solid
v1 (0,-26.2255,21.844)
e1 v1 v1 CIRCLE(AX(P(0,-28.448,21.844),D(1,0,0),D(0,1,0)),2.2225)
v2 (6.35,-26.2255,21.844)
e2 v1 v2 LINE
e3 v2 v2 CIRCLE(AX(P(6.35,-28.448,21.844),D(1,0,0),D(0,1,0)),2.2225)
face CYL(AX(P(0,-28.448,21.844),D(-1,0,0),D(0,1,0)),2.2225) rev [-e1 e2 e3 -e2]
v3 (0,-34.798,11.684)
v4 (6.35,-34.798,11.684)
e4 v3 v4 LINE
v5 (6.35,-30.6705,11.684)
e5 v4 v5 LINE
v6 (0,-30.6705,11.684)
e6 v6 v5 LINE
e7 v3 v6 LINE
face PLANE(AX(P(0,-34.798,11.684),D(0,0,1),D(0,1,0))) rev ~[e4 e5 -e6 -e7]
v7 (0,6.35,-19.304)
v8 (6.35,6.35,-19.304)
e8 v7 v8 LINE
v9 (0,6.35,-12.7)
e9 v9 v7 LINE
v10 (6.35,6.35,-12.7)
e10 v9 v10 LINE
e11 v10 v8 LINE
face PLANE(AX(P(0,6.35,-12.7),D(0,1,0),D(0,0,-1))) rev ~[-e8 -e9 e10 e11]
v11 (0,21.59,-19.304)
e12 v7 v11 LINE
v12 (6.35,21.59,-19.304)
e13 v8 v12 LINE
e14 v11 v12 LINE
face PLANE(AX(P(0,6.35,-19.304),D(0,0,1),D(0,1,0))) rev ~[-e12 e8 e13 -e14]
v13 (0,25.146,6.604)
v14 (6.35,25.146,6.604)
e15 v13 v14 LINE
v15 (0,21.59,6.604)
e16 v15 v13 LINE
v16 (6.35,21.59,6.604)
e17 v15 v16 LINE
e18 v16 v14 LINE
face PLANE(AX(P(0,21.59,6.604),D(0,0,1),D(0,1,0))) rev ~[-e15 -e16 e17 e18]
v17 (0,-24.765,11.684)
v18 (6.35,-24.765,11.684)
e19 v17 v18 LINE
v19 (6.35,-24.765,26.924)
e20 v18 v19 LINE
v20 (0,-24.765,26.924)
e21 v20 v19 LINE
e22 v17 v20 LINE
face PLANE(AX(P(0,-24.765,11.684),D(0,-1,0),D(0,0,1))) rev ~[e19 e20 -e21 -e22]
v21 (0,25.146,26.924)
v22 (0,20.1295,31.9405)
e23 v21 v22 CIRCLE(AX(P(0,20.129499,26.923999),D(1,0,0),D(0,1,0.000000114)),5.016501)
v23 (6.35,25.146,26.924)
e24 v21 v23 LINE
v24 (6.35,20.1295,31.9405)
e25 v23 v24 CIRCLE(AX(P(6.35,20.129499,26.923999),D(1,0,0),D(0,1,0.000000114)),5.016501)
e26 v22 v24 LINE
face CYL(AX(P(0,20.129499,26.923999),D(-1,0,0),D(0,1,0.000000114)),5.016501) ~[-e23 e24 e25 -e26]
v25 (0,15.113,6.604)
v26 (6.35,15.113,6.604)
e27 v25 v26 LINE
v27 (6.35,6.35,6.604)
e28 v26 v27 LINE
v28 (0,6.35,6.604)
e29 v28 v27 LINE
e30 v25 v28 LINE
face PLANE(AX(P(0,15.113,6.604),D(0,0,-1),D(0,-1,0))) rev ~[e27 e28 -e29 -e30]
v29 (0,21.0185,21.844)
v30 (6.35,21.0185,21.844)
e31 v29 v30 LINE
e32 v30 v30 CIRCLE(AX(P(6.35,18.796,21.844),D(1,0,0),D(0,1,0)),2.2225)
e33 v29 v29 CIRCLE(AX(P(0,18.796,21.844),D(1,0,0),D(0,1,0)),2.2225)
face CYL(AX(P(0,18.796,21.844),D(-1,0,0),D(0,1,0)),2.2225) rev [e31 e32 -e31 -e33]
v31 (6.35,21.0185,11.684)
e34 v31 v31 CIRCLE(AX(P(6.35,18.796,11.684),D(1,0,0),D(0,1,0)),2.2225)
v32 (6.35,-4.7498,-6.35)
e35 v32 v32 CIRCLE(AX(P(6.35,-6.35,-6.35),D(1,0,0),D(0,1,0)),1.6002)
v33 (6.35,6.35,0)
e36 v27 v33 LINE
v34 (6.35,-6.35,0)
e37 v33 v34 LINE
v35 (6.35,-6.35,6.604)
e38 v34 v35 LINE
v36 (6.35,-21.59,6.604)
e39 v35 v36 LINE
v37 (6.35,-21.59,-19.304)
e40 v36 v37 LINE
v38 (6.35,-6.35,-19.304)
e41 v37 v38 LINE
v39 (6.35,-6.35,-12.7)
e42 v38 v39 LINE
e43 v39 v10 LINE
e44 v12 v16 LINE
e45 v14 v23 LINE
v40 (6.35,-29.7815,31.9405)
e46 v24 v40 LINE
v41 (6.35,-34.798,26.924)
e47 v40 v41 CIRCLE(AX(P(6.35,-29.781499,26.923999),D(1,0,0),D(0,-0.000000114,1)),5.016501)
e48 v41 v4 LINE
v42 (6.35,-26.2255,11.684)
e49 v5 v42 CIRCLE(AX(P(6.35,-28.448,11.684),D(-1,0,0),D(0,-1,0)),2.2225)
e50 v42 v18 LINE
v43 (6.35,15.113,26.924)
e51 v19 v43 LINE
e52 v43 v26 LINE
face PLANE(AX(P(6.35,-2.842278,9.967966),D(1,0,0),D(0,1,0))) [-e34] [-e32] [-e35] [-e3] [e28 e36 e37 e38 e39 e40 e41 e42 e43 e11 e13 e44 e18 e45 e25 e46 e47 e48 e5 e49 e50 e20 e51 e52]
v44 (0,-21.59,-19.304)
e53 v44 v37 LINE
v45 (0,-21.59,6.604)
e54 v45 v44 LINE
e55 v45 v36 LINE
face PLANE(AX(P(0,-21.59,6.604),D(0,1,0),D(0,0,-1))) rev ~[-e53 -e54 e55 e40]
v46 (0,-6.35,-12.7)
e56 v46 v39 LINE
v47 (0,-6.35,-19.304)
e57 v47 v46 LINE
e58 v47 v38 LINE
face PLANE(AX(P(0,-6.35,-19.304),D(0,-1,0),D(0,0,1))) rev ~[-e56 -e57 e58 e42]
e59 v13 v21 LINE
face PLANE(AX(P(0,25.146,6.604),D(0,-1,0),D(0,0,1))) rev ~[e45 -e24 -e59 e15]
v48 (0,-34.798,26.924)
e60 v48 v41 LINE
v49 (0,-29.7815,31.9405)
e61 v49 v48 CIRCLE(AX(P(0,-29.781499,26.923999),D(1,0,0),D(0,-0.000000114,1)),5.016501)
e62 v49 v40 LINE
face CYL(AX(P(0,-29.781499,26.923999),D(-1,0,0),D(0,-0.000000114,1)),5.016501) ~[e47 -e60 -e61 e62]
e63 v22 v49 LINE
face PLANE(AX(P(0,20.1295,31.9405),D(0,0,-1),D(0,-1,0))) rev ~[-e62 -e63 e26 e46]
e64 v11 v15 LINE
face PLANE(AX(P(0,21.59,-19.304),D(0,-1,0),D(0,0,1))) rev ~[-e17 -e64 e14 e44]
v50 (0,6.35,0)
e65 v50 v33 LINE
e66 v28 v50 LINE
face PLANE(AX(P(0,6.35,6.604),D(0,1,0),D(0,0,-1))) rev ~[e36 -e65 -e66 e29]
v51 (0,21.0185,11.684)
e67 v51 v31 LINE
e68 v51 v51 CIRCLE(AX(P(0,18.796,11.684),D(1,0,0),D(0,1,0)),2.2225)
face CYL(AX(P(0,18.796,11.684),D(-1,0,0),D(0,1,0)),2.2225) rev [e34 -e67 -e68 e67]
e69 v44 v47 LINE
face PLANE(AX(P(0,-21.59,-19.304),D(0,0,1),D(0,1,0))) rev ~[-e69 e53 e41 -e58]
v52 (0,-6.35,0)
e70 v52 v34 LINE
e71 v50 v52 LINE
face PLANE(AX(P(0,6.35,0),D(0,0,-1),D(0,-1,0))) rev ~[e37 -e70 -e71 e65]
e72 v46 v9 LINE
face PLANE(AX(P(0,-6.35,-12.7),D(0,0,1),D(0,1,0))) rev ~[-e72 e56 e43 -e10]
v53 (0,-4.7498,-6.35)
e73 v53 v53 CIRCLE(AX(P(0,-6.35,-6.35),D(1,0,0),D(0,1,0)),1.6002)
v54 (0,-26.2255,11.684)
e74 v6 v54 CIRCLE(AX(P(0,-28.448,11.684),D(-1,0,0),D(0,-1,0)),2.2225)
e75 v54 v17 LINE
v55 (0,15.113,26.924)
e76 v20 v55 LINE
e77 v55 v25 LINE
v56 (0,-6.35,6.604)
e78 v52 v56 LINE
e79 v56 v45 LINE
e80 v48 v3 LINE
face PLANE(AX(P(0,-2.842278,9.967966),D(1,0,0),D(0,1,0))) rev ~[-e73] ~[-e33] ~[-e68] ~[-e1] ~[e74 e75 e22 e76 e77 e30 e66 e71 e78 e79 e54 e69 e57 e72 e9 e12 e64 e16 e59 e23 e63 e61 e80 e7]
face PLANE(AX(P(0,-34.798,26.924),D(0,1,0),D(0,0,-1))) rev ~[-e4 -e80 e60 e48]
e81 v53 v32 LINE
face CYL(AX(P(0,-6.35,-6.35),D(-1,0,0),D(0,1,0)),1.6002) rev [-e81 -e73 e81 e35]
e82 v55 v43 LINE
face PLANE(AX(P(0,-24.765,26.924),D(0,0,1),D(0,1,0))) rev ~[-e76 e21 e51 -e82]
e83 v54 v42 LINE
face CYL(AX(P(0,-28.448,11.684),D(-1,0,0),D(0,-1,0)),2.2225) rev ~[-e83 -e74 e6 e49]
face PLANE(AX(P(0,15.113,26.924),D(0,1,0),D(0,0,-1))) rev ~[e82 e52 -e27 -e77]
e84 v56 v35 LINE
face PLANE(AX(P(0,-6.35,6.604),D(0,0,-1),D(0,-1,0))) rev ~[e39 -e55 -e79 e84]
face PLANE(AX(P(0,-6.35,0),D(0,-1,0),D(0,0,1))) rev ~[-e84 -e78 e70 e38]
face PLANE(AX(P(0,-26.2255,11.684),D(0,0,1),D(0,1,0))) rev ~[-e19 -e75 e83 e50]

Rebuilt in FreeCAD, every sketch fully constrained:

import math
import FreeCAD as App
import Part
import Sketcher
from FreeCAD import Vector
Q = App.Units.Quantity

doc = App.newDocument("Part")
body = doc.addObject("PartDesign::Body", "Body")

# Sketch on YZ plane
sketch1 = body.newObject("Sketcher::SketchObject", "Sketch")
sketch1.AttachmentSupport = (doc.getObject("YZ_Plane"), [""])
sketch1.MapMode = "FlatFace"
sketch1.addGeometry([
    Part.LineSegment(Vector(6.3, 0, 0), Vector(-6.3, 0, 0)),  # 0
    Part.LineSegment(Vector(-6.3, 0, 0), Vector(-6.3, 6.6, 0)),  # 1
    Part.LineSegment(Vector(-6.3, 6.6, 0), Vector(-21.6, 6.6, 0)),  # 2
    Part.LineSegment(Vector(-21.6, 6.6, 0), Vector(-21.6, -19.3, 0)),  # 3
    Part.LineSegment(Vector(-21.6, -19.3, 0), Vector(-6.3, -19.3, 0)),  # 4
    Part.LineSegment(Vector(-6.3, -19.3, 0), Vector(-6.3, -12.7, 0)),  # 5
    Part.LineSegment(Vector(-6.3, -12.7, 0), Vector(6.3, -12.7, 0)),  # 6
    Part.LineSegment(Vector(6.3, -12.7, 0), Vector(6.3, -19.3, 0)),  # 7
    Part.LineSegment(Vector(6.3, -19.3, 0), Vector(21.6, -19.3, 0)),  # 8
    Part.LineSegment(Vector(21.6, -19.3, 0), Vector(21.6, 6.6, 0)),  # 9
    Part.LineSegment(Vector(21.6, 6.6, 0), Vector(25.1, 6.6, 0)),  # 10
    Part.LineSegment(Vector(25.1, 6.6, 0), Vector(25.1, 26.9, 0)),  # 11
    Part.ArcOfCircle(Part.Circle(Vector(20.1, 26.9, 0), Vector(0, 0, 1), 5), math.radians(0), math.radians(90)),  # 12
    Part.LineSegment(Vector(20.1, 31.9, 0), Vector(-29.8, 31.9, 0)),  # 13
    Part.ArcOfCircle(Part.Circle(Vector(-29.8, 26.9, 0), Vector(0, 0, 1), 5), math.radians(90), math.radians(180)),  # 14
    Part.LineSegment(Vector(-34.8, 26.9, 0), Vector(-34.8, 11.7, 0)),  # 15
    Part.LineSegment(Vector(-34.8, 11.7, 0), Vector(-30.7, 11.7, 0)),  # 16
    Part.ArcOfCircle(Part.Circle(Vector(-28.4, 11.7, 0), Vector(0, 0, 1), 2.2), math.radians(0), math.radians(180)),  # 17
    Part.LineSegment(Vector(-26.2, 11.7, 0), Vector(-24.8, 11.7, 0)),  # 18
    Part.LineSegment(Vector(-24.8, 11.7, 0), Vector(-24.8, 26.9, 0)),  # 19
    Part.LineSegment(Vector(-24.8, 26.9, 0), Vector(15.1, 26.9, 0)),  # 20
    Part.LineSegment(Vector(15.1, 26.9, 0), Vector(15.1, 6.6, 0)),  # 21
    Part.LineSegment(Vector(15.1, 6.6, 0), Vector(6.3, 6.6, 0)),  # 22
    Part.LineSegment(Vector(6.3, 6.6, 0), Vector(6.3, 0, 0)),  # 23
    Part.Circle(Vector(-6.3, -6.3, 0), Vector(0, 0, 1), 1.6),  # 24
    Part.Circle(Vector(-28.4, 21.8, 0), Vector(0, 0, 1), 2.2),  # 25
    Part.Circle(Vector(18.8, 11.7, 0), Vector(0, 0, 1), 2.2),  # 26
    Part.Circle(Vector(18.8, 21.8, 0), Vector(0, 0, 1), 2.2),  # 27
], False)
sketch1.addConstraint([
    Sketcher.Constraint("Coincident", 0, 2, 1, 1),
    Sketcher.Constraint("Coincident", 1, 2, 2, 1),
    Sketcher.Constraint("Coincident", 2, 2, 3, 1),
    Sketcher.Constraint("Coincident", 3, 2, 4, 1),
    Sketcher.Constraint("Coincident", 4, 2, 5, 1),
    Sketcher.Constraint("Coincident", 5, 2, 6, 1),
    Sketcher.Constraint("Coincident", 6, 2, 7, 1),
    Sketcher.Constraint("Coincident", 7, 2, 8, 1),
    Sketcher.Constraint("Coincident", 8, 2, 9, 1),
    Sketcher.Constraint("Coincident", 9, 2, 10, 1),
    Sketcher.Constraint("Coincident", 10, 2, 11, 1),
    Sketcher.Constraint("Tangent", 11, 2, 12, 1),
    Sketcher.Constraint("Tangent", 12, 2, 13, 1),
    Sketcher.Constraint("Tangent", 13, 2, 14, 1),
    Sketcher.Constraint("Tangent", 14, 2, 15, 1),
    Sketcher.Constraint("Coincident", 15, 2, 16, 1),
    Sketcher.Constraint("Coincident", 16, 2, 17, 2),
    Sketcher.Constraint("Coincident", 17, 1, 18, 1),
    Sketcher.Constraint("Coincident", 18, 2, 19, 1),
    Sketcher.Constraint("Coincident", 19, 2, 20, 1),
    Sketcher.Constraint("Coincident", 20, 2, 21, 1),
    Sketcher.Constraint("Coincident", 21, 2, 22, 1),
    Sketcher.Constraint("Coincident", 22, 2, 23, 1),
    Sketcher.Constraint("Coincident", 23, 2, 0, 1),
    Sketcher.Constraint("Horizontal", 0),
    Sketcher.Constraint("Vertical", 1),
    Sketcher.Constraint("Horizontal", 2),
    Sketcher.Constraint("Vertical", 3),
    Sketcher.Constraint("Horizontal", 4),
    Sketcher.Constraint("Vertical", 5),
    Sketcher.Constraint("Horizontal", 6),
    Sketcher.Constraint("Vertical", 7),
    Sketcher.Constraint("Horizontal", 8),
    Sketcher.Constraint("Vertical", 9),
    Sketcher.Constraint("Horizontal", 10),
    Sketcher.Constraint("Vertical", 11),
    Sketcher.Constraint("Horizontal", 13),
    Sketcher.Constraint("Vertical", 15),
    Sketcher.Constraint("Horizontal", 16),
    Sketcher.Constraint("Horizontal", 18),
    Sketcher.Constraint("Vertical", 19),
    Sketcher.Constraint("Horizontal", 20),
    Sketcher.Constraint("Vertical", 21),
    Sketcher.Constraint("Horizontal", 22),
    Sketcher.Constraint("Vertical", 23),
    Sketcher.Constraint("Equal", 12, 14),
    Sketcher.Constraint("Equal", 17, 25),
    Sketcher.Constraint("Equal", 25, 26),
    Sketcher.Constraint("Equal", 26, 27),
    Sketcher.Constraint("Symmetric", 0, 2, 23, 2, -1, 1),
    Sketcher.Constraint("Symmetric", 4, 2, 7, 2, -2),
    Sketcher.Constraint("Symmetric", 2, 2, 9, 2, -2),
    Sketcher.Constraint("Horizontal", 17, 3, 26, 3),
    Sketcher.Constraint("Horizontal", 25, 3, 27, 3),
    Sketcher.Constraint("Horizontal", 26, 3, 15, 2),
    Sketcher.Constraint("Horizontal", 16, 2, 17, 1),
    Sketcher.Constraint("Horizontal", 14, 2, 19, 2),
    Sketcher.Constraint("Horizontal", 10, 2, 21, 2),
    Sketcher.Constraint("Vertical", 17, 3, 25, 3),
    Sketcher.Constraint("Vertical", 26, 3, 27, 3),
    Sketcher.Constraint("Vertical", 24, 3, 0, 2),
    Sketcher.Constraint("Vertical", 1, 2, 4, 2),
    Sketcher.Constraint("Equal", 1, 5),
    Sketcher.Constraint("Equal", 8, 15),
    Sketcher.Constraint("Diameter", 24, Q("0.126 in")),
    Sketcher.Constraint("Diameter", 25, Q("0.175 in")),
    Sketcher.Constraint("DistanceX", 0, 2, 0, 1, Q("0.5 in")),
    Sketcher.Constraint("DistanceX", 2, 2, 2, 1, Q("0.6 in")),
    Sketcher.Constraint("DistanceY", 11, 1, 11, 2, Q("0.8 in")),
    Sketcher.Constraint("DistanceX", 10, 1, 10, 2, Q("0.14 in")),
    Sketcher.Constraint("DistanceX", 20, 1, 20, 2, Q("1.57 in")),
    Sketcher.Constraint("DistanceY", 1, 1, 1, 2, Q("0.26 in")),
    Sketcher.Constraint("DistanceY", 3, 2, 3, 1, Q("1.02 in")),
    Sketcher.Constraint("Radius", 12, Q("0.1975 in")),
    Sketcher.Constraint("DistanceY", 25, 3, 14, 3, Q("0.2 in")),
    Sketcher.Constraint("DistanceX", 13, 2, 13, 1, Q("1.965 in")),
    Sketcher.Constraint("DistanceX", 22, 2, 22, 1, Q("0.345 in")),
    Sketcher.Constraint("DistanceX", 17, 3, -1, 1, Q("1.12 in")),
    Sketcher.Constraint("DistanceY", 24, 3, -1, 1, Q("0.25 in")),
    Sketcher.Constraint("DistanceX", -1, 1, 26, 3, Q("0.74 in")),
])
pad1 = body.newObject("PartDesign::Pad", "Pad")
pad1.Profile = sketch1
pad1.Length = Q("0.25 in")

doc.recompute()
